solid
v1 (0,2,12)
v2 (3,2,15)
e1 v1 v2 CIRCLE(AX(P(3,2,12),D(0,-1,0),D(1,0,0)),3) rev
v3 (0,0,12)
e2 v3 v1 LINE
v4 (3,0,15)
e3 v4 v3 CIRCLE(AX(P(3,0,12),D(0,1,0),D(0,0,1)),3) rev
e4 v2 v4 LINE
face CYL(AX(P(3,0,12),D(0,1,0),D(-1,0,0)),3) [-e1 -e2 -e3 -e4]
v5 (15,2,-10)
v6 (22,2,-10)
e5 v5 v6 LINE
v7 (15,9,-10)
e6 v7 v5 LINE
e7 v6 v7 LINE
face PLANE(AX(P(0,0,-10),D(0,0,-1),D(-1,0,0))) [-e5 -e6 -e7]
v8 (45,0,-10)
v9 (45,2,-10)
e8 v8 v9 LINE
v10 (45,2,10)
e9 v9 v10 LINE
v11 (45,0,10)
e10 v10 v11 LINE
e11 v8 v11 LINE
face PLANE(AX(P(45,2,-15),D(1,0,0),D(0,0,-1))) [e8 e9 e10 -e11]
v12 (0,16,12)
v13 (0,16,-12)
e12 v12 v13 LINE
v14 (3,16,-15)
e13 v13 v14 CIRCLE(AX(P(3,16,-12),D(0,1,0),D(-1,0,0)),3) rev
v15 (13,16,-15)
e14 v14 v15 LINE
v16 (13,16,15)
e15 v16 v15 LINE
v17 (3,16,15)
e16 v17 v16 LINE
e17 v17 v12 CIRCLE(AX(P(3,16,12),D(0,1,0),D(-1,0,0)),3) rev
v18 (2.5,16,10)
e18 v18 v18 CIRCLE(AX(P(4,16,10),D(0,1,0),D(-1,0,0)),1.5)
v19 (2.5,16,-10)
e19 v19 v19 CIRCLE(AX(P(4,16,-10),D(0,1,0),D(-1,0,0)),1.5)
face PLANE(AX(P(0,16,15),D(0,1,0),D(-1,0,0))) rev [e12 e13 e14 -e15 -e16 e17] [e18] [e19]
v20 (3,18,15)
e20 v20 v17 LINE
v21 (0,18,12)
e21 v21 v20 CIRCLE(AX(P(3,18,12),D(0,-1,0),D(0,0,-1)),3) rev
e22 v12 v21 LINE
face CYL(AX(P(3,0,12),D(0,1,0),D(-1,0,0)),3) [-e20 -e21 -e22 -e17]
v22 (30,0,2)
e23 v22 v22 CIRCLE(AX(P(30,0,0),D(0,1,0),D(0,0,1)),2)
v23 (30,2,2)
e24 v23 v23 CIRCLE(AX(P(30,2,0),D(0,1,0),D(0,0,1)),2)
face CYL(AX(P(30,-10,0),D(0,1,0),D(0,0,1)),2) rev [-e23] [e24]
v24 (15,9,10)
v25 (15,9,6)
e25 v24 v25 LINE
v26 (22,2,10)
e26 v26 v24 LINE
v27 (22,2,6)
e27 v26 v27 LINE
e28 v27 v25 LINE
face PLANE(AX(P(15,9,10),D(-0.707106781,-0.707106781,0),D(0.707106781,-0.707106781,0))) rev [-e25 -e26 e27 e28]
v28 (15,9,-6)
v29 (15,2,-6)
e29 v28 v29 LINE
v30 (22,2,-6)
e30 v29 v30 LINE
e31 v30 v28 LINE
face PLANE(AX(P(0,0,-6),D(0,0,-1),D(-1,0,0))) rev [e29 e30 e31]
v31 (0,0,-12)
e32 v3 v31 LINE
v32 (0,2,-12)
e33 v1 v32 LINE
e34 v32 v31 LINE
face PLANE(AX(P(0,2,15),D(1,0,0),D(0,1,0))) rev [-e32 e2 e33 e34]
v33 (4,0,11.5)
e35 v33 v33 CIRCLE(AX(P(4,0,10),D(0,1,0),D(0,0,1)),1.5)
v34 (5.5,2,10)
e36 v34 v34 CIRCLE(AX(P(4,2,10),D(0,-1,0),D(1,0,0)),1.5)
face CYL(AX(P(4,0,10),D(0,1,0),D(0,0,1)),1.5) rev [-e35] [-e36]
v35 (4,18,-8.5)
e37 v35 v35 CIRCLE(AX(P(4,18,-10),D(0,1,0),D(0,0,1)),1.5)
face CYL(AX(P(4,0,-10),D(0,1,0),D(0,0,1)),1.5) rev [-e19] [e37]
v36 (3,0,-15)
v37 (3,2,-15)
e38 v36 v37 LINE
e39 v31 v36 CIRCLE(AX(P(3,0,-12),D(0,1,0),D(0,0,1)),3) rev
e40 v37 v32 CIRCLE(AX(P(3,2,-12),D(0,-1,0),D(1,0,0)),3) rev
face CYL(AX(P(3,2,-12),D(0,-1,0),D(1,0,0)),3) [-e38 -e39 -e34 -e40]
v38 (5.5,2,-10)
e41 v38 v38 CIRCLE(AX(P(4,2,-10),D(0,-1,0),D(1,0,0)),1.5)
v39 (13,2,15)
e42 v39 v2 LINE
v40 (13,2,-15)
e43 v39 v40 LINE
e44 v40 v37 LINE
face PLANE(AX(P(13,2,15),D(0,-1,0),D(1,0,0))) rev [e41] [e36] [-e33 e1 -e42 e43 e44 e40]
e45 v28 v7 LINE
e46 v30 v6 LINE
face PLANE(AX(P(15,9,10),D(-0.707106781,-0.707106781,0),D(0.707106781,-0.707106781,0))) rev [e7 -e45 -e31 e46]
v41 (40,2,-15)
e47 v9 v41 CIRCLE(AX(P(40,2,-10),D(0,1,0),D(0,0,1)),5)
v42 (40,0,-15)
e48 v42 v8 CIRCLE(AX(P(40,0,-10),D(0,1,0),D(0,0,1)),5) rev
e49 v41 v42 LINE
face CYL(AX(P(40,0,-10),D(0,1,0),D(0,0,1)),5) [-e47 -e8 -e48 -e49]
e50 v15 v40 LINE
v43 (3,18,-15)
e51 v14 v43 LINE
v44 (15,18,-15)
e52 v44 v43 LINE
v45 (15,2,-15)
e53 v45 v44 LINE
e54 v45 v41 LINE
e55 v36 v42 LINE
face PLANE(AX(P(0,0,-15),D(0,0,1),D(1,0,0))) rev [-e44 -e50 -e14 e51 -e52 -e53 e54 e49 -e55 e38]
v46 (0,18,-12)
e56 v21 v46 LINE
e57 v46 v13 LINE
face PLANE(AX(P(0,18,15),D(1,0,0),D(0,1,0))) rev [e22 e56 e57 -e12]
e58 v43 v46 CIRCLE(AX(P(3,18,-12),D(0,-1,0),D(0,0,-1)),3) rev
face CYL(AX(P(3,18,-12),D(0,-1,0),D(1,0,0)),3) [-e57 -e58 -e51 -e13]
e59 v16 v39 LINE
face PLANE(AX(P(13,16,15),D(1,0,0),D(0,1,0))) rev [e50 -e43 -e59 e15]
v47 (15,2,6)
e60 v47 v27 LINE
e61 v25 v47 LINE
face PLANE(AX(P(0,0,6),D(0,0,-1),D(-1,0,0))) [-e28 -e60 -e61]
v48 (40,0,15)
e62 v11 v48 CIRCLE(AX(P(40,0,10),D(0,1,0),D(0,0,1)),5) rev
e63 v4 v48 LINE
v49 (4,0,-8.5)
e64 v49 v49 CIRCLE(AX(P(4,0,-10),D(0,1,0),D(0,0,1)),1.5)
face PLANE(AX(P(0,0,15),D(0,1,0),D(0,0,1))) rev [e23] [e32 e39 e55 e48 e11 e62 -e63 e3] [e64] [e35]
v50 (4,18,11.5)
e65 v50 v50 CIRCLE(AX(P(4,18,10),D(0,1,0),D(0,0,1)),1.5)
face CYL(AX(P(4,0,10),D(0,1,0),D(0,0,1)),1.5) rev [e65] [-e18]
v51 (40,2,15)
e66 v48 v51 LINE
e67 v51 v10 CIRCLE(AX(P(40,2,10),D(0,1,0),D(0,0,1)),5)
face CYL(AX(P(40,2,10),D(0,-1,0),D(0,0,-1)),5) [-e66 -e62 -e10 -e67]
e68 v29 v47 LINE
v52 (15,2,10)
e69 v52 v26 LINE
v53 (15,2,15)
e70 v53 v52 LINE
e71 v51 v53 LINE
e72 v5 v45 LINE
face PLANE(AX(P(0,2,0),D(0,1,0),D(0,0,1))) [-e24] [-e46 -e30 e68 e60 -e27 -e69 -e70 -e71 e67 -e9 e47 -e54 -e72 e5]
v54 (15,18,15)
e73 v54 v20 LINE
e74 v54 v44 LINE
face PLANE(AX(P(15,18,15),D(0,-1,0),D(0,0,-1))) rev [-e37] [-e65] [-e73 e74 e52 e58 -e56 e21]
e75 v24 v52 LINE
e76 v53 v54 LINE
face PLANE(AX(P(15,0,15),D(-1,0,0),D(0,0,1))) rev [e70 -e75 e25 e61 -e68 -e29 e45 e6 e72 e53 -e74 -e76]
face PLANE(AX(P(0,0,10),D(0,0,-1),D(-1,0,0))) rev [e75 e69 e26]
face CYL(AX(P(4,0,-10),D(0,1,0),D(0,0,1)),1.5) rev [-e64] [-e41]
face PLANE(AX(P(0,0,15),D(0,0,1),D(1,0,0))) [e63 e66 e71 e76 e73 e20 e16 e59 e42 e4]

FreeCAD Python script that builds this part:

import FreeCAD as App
import Part
import Sketcher
from FreeCAD import Vector
Q = App.Units.Quantity


def edges_at(feature, points):
    """Names of the edges that pass closest to the given points."""
    edges = feature.Shape.Edges
    near = lambda p: min(range(len(edges)), key=lambda i: edges[i].distToShape(Part.Vertex(*p))[0])
    return sorted({f"Edge{near(p) + 1}" for p in points})

doc = App.newDocument("Part")
params = doc.addObject("Spreadsheet::Sheet", "Params")
for row, (alias, value) in enumerate([
    ("sketch1_width", "15 mm"),
    ("sketch1_width2", "13 mm"),
    ("sketch1_height", "18 mm"),
    ("sketch1_height2", "2 mm"),
    ("pad1_length", "30 mm"),
    ("sketch2_diameter", "3 mm"),
    ("fillet_radius", "3 mm"),
    ("sketch3_width", "30 mm"),
    ("pad2_length", "2 mm"),
    ("sketch4_width", "7 mm"),
    ("pad3_length", "20 mm"),
    ("sketch5_width", "7 mm"),
    ("pocket2_length", "12 mm"),
    ("sketch6_diameter", "4 mm"),
    ("pocket3_length", "12 mm"),
    ("fillet2_radius", "5 mm"),
], start=1):
    params.set(f"A{row}", alias)
    params.set(f"B{row}", "=" + value)
    params.setAlias(f"B{row}", alias)

body = doc.addObject("PartDesign::Body", "Body")

# Sketch on XY plane
sketch1 = body.newObject("Sketcher::SketchObject", "Sketch")
sketch1.AttachmentSupport = (doc.getObject("XY_Plane"), [""])
sketch1.MapMode = "FlatFace"
sketch1.addGeometry([
    Part.LineSegment(Vector(0, 0, 0), Vector(15, 0, 0)),  # 0
    Part.LineSegment(Vector(15, 0, 0), Vector(15, 18, 0)),  # 1
    Part.LineSegment(Vector(15, 18, 0), Vector(0, 18, 0)),  # 2
    Part.LineSegment(Vector(0, 18, 0), Vector(0, 16, 0)),  # 3
    Part.LineSegment(Vector(0, 16, 0), Vector(13, 16, 0)),  # 4
    Part.LineSegment(Vector(13, 16, 0), Vector(13, 2, 0)),  # 5
    Part.LineSegment(Vector(13, 2, 0), Vector(0, 2, 0)),  # 6
    Part.LineSegment(Vector(0, 2, 0), Vector(0, 0, 0)),  # 7
], False)
sketch1.addConstraint([
    Sketcher.Constraint("Coincident", 0, 2, 1, 1),
    Sketcher.Constraint("Coincident", 1, 2, 2, 1),
    Sketcher.Constraint("Coincident", 2, 2, 3, 1),
    Sketcher.Constraint("Coincident", 3, 2, 4, 1),
    Sketcher.Constraint("Coincident", 4, 2, 5, 1),
    Sketcher.Constraint("Coincident", 5, 2, 6, 1),
    Sketcher.Constraint("Coincident", 6, 2, 7, 1),
    Sketcher.Constraint("Coincident", 7, 2, 0, 1),
    Sketcher.Constraint("Horizontal", 0),
    Sketcher.Constraint("Vertical", 1),
    Sketcher.Constraint("Horizontal", 2),
    Sketcher.Constraint("Vertical", 3),
    Sketcher.Constraint("Horizontal", 4),
    Sketcher.Constraint("Vertical", 5),
    Sketcher.Constraint("Horizontal", 6),
    Sketcher.Constraint("Vertical", 7),
    Sketcher.Constraint("Coincident", 7, 2, -1, 1),
    Sketcher.Constraint("PointOnObject", 2, 2, -2),
    Sketcher.Constraint("Equal", 3, 7),
    Sketcher.Constraint("DistanceX", 0, 1, 0, 2, Q("15 mm")),
    Sketcher.Constraint("DistanceX", 4, 1, 4, 2, Q("13 mm")),
    Sketcher.Constraint("DistanceY", 1, 1, 1, 2, Q("18 mm")),
    Sketcher.Constraint("DistanceY", 3, 2, 3, 1, Q("2 mm")),
])
sketch1.setExpression("Constraints[19]", "Params.sketch1_width")
sketch1.setExpression("Constraints[20]", "Params.sketch1_width2")
sketch1.setExpression("Constraints[21]", "Params.sketch1_height")
sketch1.setExpression("Constraints[22]", "Params.sketch1_height2")
pad1 = body.newObject("PartDesign::Pad", "Pad")
pad1.Profile = sketch1
pad1.setExpression("Length", "Params.pad1_length")
pad1.Midplane = True

# Sketch on XZ plane
sketch2 = body.newObject("Sketcher::SketchObject", "Sketch001")
sketch2.AttachmentSupport = (doc.getObject("XZ_Plane"), [""])
sketch2.MapMode = "FlatFace"
sketch2.AttachmentOffset = App.Placement(Vector(0, 0, -18), App.Rotation())
sketch2.addGeometry([
    Part.Circle(Vector(4, -10, 0), Vector(0, 0, 1), 1.5),
    Part.Circle(Vector(4, 10, 0), Vector(0, 0, 1), 1.5),
], False)
sketch2.addConstraint([
    Sketcher.Constraint("Equal", 0, 1),
    Sketcher.Constraint("Symmetric", 0, 3, 1, 3, -1),
    Sketcher.Constraint("Diameter", 0, Q("3 mm")),
    Sketcher.Constraint("DistanceX", -1, 1, 0, 3, Q("4 mm")),
    Sketcher.Constraint("DistanceY", 0, 3, -1, 1, Q("10 mm")),
])
sketch2.setExpression("Constraints[2]", "Params.sketch2_diameter")
pocket1 = body.newObject("PartDesign::Pocket", "Pocket")
pocket1.Profile = sketch2
pocket1.Type = "ThroughAll"
pocket1.Reversed = True
doc.recompute()

fillet = body.newObject("PartDesign::Fillet", "Fillet")
fillet.Base = (pocket1, edges_at(pocket1, [
    (0, 1, -15),
    (0, 17, 15),
    (0, 1, 15),
    (0, 17, -15),
]))
fillet.setExpression("Radius", "Params.fillet_radius")

# Sketch on XZ plane
sketch3 = body.newObject("Sketcher::SketchObject", "Sketch002")
sketch3.AttachmentSupport = (doc.getObject("XZ_Plane"), [""])
sketch3.MapMode = "FlatFace"
sketch3.addGeometry([
    Part.LineSegment(Vector(15, 15, 0), Vector(15, -15, 0)),
    Part.LineSegment(Vector(15, -15, 0), Vector(45, -15, 0)),
    Part.LineSegment(Vector(45, -15, 0), Vector(45, 15, 0)),
    Part.LineSegment(Vector(45, 15, 0), Vector(15, 15, 0)),
], False)
sketch3.addConstraint([
    Sketcher.Constraint("Coincident", 0, 2, 1, 1),
    Sketcher.Constraint("Coincident", 1, 2, 2, 1),
    Sketcher.Constraint("Coincident", 2, 2, 3, 1),
    Sketcher.Constraint("Coincident", 3, 2, 0, 1),
    Sketcher.Constraint("Vertical", 0),
    Sketcher.Constraint("Horizontal", 1),
    Sketcher.Constraint("Vertical", 2),
    Sketcher.Constraint("Horizontal", 3),
    Sketcher.Constraint("Equal", 3, 0),
    Sketcher.Constraint("DistanceX", 1, 1, 1, 2, Q("30 mm")),
    Sketcher.Constraint("DistanceX", -1, 1, 0, 2, Q("15 mm")),
    Sketcher.Constraint("DistanceY", 0, 2, -1, 1, Q("15 mm")),
])
sketch3.setExpression("Constraints[9]", "Params.sketch3_width")
pad2 = body.newObject("PartDesign::Pad", "Pad001")
pad2.Profile = sketch3
pad2.setExpression("Length", "Params.pad2_length")
pad2.Reversed = True

# Sketch on XY plane
sketch4 = body.newObject("Sketcher::SketchObject", "Sketch003")
sketch4.AttachmentSupport = (doc.getObject("XY_Plane"), [""])
sketch4.MapMode = "FlatFace"
sketch4.addGeometry([
    Part.LineSegment(Vector(15, 9, 0), Vector(15, 2, 0)),
    Part.LineSegment(Vector(15, 2, 0), Vector(22, 2, 0)),
    Part.LineSegment(Vector(22, 2, 0), Vector(15, 9, 0)),
], False)
sketch4.addConstraint([
    Sketcher.Constraint("Coincident", 0, 2, 1, 1),
    Sketcher.Constraint("Coincident", 1, 2, 2, 1),
    Sketcher.Constraint("Coincident", 2, 2, 0, 1),
    Sketcher.Constraint("Vertical", 0),
    Sketcher.Constraint("Horizontal", 1),
    Sketcher.Constraint("Equal", 1, 0),
    Sketcher.Constraint("DistanceX", 1, 1, 1, 2, Q("7 mm")),
    Sketcher.Constraint("DistanceX", -1, 1, 0, 2, Q("15 mm")),
    Sketcher.Constraint("DistanceY", -1, 1, 0, 2, Q("2 mm")),
])
sketch4.setExpression("Constraints[6]", "Params.sketch4_width")
pad3 = body.newObject("PartDesign::Pad", "Pad002")
pad3.Profile = sketch4
pad3.setExpression("Length", "Params.pad3_length")
pad3.Midplane = True

# Sketch on XY plane
sketch5 = body.newObject("Sketcher::SketchObject", "Sketch004")
sketch5.AttachmentSupport = (doc.getObject("XY_Plane"), [""])
sketch5.MapMode = "FlatFace"
sketch5.addGeometry([
    Part.LineSegment(Vector(15, 9, 0), Vector(15, 2, 0)),
    Part.LineSegment(Vector(15, 2, 0), Vector(22, 2, 0)),
    Part.LineSegment(Vector(22, 2, 0), Vector(15, 9, 0)),
], False)
sketch5.addConstraint([
    Sketcher.Constraint("Coincident", 0, 2, 1, 1),
    Sketcher.Constraint("Coincident", 1, 2, 2, 1),
    Sketcher.Constraint("Coincident", 2, 2, 0, 1),
    Sketcher.Constraint("Vertical", 0),
    Sketcher.Constraint("Horizontal", 1),
    Sketcher.Constraint("Equal", 1, 0),
    Sketcher.Constraint("DistanceX", 1, 1, 1, 2, Q("7 mm")),
    Sketcher.Constraint("DistanceX", -1, 1, 0, 2, Q("15 mm")),
    Sketcher.Constraint("DistanceY", -1, 1, 0, 2, Q("2 mm")),
])
sketch5.setExpression("Constraints[6]", "Params.sketch5_width")
pocket2 = body.newObject("PartDesign::Pocket", "Pocket001")
pocket2.Profile = sketch5
pocket2.setExpression("Length", "Params.pocket2_length")
pocket2.Midplane = True

# Sketch on XZ plane
sketch6 = body.newObject("Sketcher::SketchObject", "Sketch005")
sketch6.AttachmentSupport = (doc.getObject("XZ_Plane"), [""])
sketch6.MapMode = "FlatFace"
sketch6.AttachmentOffset = App.Placement(Vector(0, 0, -2), App.Rotation())
sketch6.addGeometry(Part.Circle(Vector(30, 0, 0), Vector(0, 0, 1), 2), False)
sketch6.addConstraint([
    Sketcher.Constraint("PointOnObject", 0, 3, -1),
    Sketcher.Constraint("Diameter", 0, Q("4 mm")),
    Sketcher.Constraint("DistanceX", -1, 1, 0, 3, Q("30 mm")),
])
sketch6.setExpression("Constraints[1]", "Params.sketch6_diameter")
pocket3 = body.newObject("PartDesign::Pocket", "Pocket002")
pocket3.Profile = sketch6
pocket3.setExpression("Length", "Params.pocket3_length")
pocket3.Reversed = True
doc.recompute()

fillet2 = body.newObject("PartDesign::Fillet", "Fillet001")
fillet2.Base = (pocket3, edges_at(pocket3, [(45, 1, 15), (45, 1, -15)]))
fillet2.setExpression("Radius", "Params.fillet2_radius")

doc.recompute()
